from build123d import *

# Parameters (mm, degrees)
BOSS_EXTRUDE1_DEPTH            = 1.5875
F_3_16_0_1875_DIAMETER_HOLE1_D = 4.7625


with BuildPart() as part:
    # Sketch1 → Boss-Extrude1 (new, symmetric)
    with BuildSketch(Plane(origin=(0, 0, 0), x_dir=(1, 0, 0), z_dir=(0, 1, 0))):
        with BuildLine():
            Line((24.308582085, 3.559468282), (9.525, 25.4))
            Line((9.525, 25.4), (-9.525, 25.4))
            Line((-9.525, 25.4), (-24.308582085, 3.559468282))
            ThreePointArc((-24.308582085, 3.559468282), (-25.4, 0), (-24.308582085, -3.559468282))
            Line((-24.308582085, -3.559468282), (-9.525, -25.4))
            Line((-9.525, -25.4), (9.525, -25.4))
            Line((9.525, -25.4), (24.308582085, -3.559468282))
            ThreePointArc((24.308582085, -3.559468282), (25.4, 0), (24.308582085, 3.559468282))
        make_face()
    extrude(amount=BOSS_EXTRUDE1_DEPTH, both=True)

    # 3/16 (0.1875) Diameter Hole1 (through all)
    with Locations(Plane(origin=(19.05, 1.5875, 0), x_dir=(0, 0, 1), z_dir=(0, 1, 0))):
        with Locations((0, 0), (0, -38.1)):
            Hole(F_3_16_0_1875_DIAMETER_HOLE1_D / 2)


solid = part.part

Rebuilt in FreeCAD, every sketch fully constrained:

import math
import FreeCAD as App
import Part
import Sketcher
Q = App.Units.Quantity

doc = App.newDocument("Part")
body = doc.addObject("PartDesign::Body", "Body")

# Sketch on XZ plane
sketch1 = doc.addObject("Sketcher::SketchObject", "Sketch")
body.addObject(sketch1)
sketch1.AttachmentSupport = (doc.XZ_Plane, [""])
sketch1.MapMode = "FlatFace"
sketch1.addGeometry(Part.LineSegment(App.Vector(24.308582, -3.559468, 0), App.Vector(9.525, -25.4, 0)), False)
sketch1.addGeometry(Part.LineSegment(App.Vector(9.525, -25.4, 0), App.Vector(-9.525, -25.4, 0)), False)
sketch1.addGeometry(Part.LineSegment(App.Vector(-9.525, -25.4, 0), App.Vector(-24.308582, -3.559468, 0)), False)
sketch1.addGeometry(Part.ArcOfCircle(Part.Circle(App.Vector(-19.05, 0, 0), App.Vector(0, 0, 1), 6.35), math.radians(145.906421), math.radians(214.093579)), False)
sketch1.addGeometry(Part.LineSegment(App.Vector(-24.308582, 3.559468, 0), App.Vector(-9.525, 25.4, 0)), False)
sketch1.addGeometry(Part.LineSegment(App.Vector(-9.525, 25.4, 0), App.Vector(9.525, 25.4, 0)), False)
sketch1.addGeometry(Part.LineSegment(App.Vector(9.525, 25.4, 0), App.Vector(24.308582, 3.559468, 0)), False)
sketch1.addGeometry(Part.ArcOfCircle(Part.Circle(App.Vector(19.05, 0, 0), App.Vector(0, 0, 1), 6.35), math.radians(-34.093579), math.radians(34.093579)), False)
sketch1.addConstraint(Sketcher.Constraint("Coincident", 0, 2, 1, 1))
sketch1.addConstraint(Sketcher.Constraint("Coincident", 1, 2, 2, 1))
sketch1.addConstraint(Sketcher.Constraint("Tangent", 2, 2, 3, 2))
sketch1.addConstraint(Sketcher.Constraint("Tangent", 3, 1, 4, 1))
sketch1.addConstraint(Sketcher.Constraint("Coincident", 4, 2, 5, 1))
sketch1.addConstraint(Sketcher.Constraint("Coincident", 5, 2, 6, 1))
sketch1.addConstraint(Sketcher.Constraint("Tangent", 6, 2, 7, 2))
sketch1.addConstraint(Sketcher.Constraint("Tangent", 7, 1, 0, 1))
sketch1.addConstraint(Sketcher.Constraint("Horizontal", 1))
sketch1.addConstraint(Sketcher.Constraint("Horizontal", 5))
sketch1.addConstraint(Sketcher.Constraint("Equal", 3, 7))
sketch1.addConstraint(Sketcher.Constraint("Symmetric", 3, 3, 7, 3, -1, 1))
sketch1.addConstraint(Sketcher.Constraint("Symmetric", 0, 2, 4, 2, -1, 1))
sketch1.addConstraint(Sketcher.Constraint("Symmetric", 3, 1, 6, 2, -2))
sketch1.addConstraint(Sketcher.Constraint("Parallel", 2, 6))
sketch1.addConstraint(Sketcher.Constraint("Radius", 3, Q("0.25 in")))
sketch1.addConstraint(Sketcher.Constraint("DistanceY", 0, 2, -1, 1, Q("1 in")))
sketch1.addConstraint(Sketcher.Constraint("DistanceX", 1, 2, 1, 1, Q("0.75 in")))
sketch1.addConstraint(Sketcher.Constraint("DistanceX", 3, 3, 7, 3, Q("1.5 in")))
pad1 = doc.addObject("PartDesign::Pad", "Pad")
body.addObject(pad1)
pad1.Profile = sketch1
pad1.Length = Q("0.125 in")
pad1.Midplane = True

# Sketch on XZ plane
sketch2 = doc.addObject("Sketcher::SketchObject", "Sketch001")
body.addObject(sketch2)
sketch2.AttachmentSupport = (doc.XZ_Plane, [""])
sketch2.MapMode = "FlatFace"
sketch2.AttachmentOffset = App.Placement(App.Vector(0, 0, -0.0625 * 25.4), App.Rotation())
sketch2.addGeometry(Part.Circle(App.Vector(19.05, 0, 0), App.Vector(0, 0, 1), 2.38125), False)
sketch2.addGeometry(Part.Circle(App.Vector(-19.05, 0, 0), App.Vector(0, 0, 1), 2.38125), False)
sketch2.addConstraint(Sketcher.Constraint("Equal", 0, 1))
sketch2.addConstraint(Sketcher.Constraint("Symmetric", 0, 3, 1, 3, -1, 1))
sketch2.addConstraint(Sketcher.Constraint("PointOnObject", 0, 3, -1))
sketch2.addConstraint(Sketcher.Constraint("Diameter", 0, Q("0.1875 in")))
sketch2.addConstraint(Sketcher.Constraint("DistanceX", 1, 3, 0, 3, Q("1.5 in")))
doc.recompute()
hole = doc.addObject("PartDesign::Hole", "Hole")
body.addObject(hole)
hole.Profile = sketch2
hole.ThreadType = "None"
hole.Diameter = Q("0.1875 in")
hole.DepthType = "ThroughAll"
hole.Reversed = True

doc.recompute()
